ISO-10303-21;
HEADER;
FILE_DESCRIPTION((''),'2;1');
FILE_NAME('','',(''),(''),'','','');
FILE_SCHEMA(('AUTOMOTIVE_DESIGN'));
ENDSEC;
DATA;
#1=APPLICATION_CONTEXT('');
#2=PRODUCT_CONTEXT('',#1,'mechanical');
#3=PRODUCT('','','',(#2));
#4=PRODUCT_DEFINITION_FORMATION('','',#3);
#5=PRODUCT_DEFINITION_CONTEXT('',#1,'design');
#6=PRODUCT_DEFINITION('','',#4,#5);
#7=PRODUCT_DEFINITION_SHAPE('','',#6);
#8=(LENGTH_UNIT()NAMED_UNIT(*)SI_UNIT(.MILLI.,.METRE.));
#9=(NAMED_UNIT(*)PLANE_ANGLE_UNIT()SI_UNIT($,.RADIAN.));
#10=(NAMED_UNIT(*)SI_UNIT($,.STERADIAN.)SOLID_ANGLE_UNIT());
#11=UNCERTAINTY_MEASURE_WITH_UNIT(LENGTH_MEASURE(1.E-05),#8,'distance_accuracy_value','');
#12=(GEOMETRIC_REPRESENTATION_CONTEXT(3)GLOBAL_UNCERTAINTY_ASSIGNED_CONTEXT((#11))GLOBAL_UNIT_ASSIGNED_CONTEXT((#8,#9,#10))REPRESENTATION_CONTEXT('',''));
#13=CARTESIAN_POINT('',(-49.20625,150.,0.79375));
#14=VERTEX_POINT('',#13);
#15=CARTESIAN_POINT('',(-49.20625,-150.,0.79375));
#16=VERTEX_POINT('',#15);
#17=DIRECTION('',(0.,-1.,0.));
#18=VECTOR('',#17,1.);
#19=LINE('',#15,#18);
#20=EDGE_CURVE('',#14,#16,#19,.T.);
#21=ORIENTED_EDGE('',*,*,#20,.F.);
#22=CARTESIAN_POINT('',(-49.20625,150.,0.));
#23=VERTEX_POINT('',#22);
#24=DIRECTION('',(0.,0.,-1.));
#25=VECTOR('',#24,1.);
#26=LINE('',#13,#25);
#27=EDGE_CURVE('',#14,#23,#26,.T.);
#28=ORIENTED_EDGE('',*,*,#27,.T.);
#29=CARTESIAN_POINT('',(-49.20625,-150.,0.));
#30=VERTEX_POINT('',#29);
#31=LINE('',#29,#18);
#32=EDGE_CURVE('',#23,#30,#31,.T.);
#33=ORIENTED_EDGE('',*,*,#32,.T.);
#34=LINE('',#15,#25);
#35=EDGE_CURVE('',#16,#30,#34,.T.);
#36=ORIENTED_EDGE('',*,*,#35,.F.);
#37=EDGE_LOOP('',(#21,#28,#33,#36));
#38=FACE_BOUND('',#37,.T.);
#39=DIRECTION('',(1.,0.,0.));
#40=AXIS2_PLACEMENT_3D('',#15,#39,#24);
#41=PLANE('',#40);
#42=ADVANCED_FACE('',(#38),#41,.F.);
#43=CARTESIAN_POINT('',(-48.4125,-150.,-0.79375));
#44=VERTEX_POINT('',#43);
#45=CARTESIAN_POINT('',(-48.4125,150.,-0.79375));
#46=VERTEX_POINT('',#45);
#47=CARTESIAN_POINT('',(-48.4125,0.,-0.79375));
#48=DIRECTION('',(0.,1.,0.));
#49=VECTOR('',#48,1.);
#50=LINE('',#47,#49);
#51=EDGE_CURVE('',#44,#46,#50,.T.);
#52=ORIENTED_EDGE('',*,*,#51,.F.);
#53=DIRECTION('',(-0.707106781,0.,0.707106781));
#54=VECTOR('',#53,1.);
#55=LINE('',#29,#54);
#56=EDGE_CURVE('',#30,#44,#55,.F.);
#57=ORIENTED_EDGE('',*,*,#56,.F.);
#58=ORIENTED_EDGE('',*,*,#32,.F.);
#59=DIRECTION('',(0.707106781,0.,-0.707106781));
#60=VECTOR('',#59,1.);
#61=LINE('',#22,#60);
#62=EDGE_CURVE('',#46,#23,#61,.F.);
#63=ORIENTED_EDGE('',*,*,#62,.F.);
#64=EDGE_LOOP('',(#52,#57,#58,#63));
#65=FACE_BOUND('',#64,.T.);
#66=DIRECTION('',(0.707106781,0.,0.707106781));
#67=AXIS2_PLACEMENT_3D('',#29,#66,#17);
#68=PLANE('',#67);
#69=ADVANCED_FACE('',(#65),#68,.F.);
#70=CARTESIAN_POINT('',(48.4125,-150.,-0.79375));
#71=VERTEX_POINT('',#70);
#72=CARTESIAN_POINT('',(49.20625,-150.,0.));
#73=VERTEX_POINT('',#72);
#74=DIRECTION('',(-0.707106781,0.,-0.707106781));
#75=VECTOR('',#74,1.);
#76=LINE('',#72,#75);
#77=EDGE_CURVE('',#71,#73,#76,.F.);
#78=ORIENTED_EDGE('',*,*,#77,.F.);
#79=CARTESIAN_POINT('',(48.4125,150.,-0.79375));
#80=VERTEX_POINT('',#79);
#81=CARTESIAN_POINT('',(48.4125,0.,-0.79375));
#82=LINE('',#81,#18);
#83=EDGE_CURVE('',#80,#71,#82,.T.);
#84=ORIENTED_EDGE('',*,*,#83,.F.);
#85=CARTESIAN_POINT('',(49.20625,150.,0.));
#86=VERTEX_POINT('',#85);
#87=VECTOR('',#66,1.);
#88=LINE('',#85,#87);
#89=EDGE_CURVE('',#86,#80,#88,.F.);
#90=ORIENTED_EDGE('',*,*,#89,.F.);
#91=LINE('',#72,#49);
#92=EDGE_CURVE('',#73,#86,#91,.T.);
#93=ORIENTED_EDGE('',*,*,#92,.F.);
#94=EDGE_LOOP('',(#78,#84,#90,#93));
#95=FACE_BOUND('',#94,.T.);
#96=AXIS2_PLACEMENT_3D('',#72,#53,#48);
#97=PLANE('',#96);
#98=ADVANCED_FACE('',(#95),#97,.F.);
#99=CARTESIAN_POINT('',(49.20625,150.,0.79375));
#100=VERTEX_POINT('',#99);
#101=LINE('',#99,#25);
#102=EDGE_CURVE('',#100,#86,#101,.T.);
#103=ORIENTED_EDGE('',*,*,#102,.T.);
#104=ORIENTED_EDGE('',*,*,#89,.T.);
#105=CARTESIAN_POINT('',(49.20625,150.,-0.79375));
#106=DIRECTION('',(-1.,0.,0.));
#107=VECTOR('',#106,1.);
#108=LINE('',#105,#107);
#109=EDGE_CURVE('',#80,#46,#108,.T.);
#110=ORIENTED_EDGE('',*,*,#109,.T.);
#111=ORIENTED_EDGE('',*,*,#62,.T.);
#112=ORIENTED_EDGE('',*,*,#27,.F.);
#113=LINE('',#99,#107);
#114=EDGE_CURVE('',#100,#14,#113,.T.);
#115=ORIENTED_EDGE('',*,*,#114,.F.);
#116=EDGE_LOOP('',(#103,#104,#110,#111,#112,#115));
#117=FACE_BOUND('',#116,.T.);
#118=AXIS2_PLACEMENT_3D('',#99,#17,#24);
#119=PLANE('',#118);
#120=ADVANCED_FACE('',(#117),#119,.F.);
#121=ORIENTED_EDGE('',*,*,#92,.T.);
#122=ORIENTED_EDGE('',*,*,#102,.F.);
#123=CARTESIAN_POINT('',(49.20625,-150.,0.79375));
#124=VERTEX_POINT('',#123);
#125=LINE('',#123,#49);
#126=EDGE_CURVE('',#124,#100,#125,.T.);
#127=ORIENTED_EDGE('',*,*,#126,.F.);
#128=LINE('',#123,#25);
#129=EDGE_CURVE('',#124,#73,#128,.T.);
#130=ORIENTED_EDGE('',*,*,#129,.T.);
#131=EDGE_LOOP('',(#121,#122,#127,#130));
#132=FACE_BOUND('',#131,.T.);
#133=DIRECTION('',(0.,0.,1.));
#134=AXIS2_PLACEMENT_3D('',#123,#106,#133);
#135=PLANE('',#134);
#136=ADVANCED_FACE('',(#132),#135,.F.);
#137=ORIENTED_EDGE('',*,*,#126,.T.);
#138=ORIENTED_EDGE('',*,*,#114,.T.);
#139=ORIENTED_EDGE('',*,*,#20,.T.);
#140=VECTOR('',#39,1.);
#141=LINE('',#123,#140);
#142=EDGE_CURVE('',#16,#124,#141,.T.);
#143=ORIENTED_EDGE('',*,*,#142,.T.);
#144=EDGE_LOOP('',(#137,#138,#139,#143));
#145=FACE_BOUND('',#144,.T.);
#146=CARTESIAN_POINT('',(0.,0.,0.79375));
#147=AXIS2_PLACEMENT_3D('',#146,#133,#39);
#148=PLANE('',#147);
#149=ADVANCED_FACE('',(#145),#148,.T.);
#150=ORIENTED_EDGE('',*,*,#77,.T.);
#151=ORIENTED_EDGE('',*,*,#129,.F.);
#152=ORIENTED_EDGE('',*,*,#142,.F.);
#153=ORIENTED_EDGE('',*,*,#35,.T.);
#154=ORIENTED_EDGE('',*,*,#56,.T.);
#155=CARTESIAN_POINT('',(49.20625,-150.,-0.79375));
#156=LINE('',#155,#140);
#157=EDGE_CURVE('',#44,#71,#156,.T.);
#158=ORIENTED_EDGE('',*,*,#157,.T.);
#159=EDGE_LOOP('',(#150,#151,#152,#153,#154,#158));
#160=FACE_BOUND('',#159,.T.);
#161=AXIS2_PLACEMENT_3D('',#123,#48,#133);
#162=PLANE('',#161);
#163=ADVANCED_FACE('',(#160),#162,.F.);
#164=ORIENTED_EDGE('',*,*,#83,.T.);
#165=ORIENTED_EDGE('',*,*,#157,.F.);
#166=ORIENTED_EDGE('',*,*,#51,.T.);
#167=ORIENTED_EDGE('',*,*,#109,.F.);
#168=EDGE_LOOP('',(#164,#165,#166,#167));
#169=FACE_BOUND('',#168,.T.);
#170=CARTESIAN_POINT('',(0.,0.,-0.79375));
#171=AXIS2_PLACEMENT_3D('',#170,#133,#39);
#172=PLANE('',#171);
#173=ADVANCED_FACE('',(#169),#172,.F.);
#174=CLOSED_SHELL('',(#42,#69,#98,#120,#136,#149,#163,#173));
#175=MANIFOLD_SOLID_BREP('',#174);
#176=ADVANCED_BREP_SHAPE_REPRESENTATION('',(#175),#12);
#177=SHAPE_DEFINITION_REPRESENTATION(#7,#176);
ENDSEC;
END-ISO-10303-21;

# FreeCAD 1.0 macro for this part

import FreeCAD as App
import Part
import Sketcher


def edges_at(feature, points):
    """Names of the edges that pass closest to the given points."""
    edges = feature.Shape.Edges
    near = lambda p: min(range(len(edges)), key=lambda i: edges[i].distToShape(Part.Vertex(*p))[0])
    return sorted({f"Edge{near(p) + 1}" for p in points})


def add_polygon(sketch, points):
    """Adds a closed chain of lines whose ends are joined by coincident constraints."""
    first, n = sketch.GeometryCount, len(points)
    for a, b in zip(points, points[1:] + points[:1]):
        sketch.addGeometry(Part.LineSegment(App.Vector(*a, 0), App.Vector(*b, 0)), False)
    for i in range(n):
        sketch.addConstraint(Sketcher.Constraint("Coincident", first + i, 2, first + (i + 1) % n, 1))

doc = App.newDocument("Part")
body = doc.addObject("PartDesign::Body", "Body")

# Sketch on XY plane
sketch1 = doc.addObject("Sketcher::SketchObject", "Sketch")
body.addObject(sketch1)
sketch1.AttachmentSupport = (doc.XY_Plane, [""])
sketch1.MapMode = "FlatFace"
add_polygon(sketch1, [(-49, 150), (-49, -150), (49, -150), (49, 150)])  # lines 0-3
sketch1.addConstraint(Sketcher.Constraint("Vertical", 0))
sketch1.addConstraint(Sketcher.Constraint("Horizontal", 1))
sketch1.addConstraint(Sketcher.Constraint("Vertical", 2))
sketch1.addConstraint(Sketcher.Constraint("Horizontal", 3))
sketch1.addConstraint(Sketcher.Constraint("Symmetric", 0, 2, 2, 2, -1, 1))
sketch1.addConstraint(Sketcher.Constraint("DistanceY", 0, 2, 0, 1, 300.0))
sketch1.addConstraint(Sketcher.Constraint("DistanceX", 1, 1, 1, 2, 98.4125))
pad1 = doc.addObject("PartDesign::Pad", "Pad")
body.addObject(pad1)
pad1.Profile = sketch1
pad1.Length = 1.5875
pad1.Midplane = True
doc.recompute()

chamfer = doc.addObject("PartDesign::Chamfer", "Chamfer")
body.addObject(chamfer)
chamfer.Base = (pad1, edges_at(pad1, [(49.206, 0, -0.794), (-49.206, 0, -0.794)]))
chamfer.Size = 0.79375

doc.recompute()
